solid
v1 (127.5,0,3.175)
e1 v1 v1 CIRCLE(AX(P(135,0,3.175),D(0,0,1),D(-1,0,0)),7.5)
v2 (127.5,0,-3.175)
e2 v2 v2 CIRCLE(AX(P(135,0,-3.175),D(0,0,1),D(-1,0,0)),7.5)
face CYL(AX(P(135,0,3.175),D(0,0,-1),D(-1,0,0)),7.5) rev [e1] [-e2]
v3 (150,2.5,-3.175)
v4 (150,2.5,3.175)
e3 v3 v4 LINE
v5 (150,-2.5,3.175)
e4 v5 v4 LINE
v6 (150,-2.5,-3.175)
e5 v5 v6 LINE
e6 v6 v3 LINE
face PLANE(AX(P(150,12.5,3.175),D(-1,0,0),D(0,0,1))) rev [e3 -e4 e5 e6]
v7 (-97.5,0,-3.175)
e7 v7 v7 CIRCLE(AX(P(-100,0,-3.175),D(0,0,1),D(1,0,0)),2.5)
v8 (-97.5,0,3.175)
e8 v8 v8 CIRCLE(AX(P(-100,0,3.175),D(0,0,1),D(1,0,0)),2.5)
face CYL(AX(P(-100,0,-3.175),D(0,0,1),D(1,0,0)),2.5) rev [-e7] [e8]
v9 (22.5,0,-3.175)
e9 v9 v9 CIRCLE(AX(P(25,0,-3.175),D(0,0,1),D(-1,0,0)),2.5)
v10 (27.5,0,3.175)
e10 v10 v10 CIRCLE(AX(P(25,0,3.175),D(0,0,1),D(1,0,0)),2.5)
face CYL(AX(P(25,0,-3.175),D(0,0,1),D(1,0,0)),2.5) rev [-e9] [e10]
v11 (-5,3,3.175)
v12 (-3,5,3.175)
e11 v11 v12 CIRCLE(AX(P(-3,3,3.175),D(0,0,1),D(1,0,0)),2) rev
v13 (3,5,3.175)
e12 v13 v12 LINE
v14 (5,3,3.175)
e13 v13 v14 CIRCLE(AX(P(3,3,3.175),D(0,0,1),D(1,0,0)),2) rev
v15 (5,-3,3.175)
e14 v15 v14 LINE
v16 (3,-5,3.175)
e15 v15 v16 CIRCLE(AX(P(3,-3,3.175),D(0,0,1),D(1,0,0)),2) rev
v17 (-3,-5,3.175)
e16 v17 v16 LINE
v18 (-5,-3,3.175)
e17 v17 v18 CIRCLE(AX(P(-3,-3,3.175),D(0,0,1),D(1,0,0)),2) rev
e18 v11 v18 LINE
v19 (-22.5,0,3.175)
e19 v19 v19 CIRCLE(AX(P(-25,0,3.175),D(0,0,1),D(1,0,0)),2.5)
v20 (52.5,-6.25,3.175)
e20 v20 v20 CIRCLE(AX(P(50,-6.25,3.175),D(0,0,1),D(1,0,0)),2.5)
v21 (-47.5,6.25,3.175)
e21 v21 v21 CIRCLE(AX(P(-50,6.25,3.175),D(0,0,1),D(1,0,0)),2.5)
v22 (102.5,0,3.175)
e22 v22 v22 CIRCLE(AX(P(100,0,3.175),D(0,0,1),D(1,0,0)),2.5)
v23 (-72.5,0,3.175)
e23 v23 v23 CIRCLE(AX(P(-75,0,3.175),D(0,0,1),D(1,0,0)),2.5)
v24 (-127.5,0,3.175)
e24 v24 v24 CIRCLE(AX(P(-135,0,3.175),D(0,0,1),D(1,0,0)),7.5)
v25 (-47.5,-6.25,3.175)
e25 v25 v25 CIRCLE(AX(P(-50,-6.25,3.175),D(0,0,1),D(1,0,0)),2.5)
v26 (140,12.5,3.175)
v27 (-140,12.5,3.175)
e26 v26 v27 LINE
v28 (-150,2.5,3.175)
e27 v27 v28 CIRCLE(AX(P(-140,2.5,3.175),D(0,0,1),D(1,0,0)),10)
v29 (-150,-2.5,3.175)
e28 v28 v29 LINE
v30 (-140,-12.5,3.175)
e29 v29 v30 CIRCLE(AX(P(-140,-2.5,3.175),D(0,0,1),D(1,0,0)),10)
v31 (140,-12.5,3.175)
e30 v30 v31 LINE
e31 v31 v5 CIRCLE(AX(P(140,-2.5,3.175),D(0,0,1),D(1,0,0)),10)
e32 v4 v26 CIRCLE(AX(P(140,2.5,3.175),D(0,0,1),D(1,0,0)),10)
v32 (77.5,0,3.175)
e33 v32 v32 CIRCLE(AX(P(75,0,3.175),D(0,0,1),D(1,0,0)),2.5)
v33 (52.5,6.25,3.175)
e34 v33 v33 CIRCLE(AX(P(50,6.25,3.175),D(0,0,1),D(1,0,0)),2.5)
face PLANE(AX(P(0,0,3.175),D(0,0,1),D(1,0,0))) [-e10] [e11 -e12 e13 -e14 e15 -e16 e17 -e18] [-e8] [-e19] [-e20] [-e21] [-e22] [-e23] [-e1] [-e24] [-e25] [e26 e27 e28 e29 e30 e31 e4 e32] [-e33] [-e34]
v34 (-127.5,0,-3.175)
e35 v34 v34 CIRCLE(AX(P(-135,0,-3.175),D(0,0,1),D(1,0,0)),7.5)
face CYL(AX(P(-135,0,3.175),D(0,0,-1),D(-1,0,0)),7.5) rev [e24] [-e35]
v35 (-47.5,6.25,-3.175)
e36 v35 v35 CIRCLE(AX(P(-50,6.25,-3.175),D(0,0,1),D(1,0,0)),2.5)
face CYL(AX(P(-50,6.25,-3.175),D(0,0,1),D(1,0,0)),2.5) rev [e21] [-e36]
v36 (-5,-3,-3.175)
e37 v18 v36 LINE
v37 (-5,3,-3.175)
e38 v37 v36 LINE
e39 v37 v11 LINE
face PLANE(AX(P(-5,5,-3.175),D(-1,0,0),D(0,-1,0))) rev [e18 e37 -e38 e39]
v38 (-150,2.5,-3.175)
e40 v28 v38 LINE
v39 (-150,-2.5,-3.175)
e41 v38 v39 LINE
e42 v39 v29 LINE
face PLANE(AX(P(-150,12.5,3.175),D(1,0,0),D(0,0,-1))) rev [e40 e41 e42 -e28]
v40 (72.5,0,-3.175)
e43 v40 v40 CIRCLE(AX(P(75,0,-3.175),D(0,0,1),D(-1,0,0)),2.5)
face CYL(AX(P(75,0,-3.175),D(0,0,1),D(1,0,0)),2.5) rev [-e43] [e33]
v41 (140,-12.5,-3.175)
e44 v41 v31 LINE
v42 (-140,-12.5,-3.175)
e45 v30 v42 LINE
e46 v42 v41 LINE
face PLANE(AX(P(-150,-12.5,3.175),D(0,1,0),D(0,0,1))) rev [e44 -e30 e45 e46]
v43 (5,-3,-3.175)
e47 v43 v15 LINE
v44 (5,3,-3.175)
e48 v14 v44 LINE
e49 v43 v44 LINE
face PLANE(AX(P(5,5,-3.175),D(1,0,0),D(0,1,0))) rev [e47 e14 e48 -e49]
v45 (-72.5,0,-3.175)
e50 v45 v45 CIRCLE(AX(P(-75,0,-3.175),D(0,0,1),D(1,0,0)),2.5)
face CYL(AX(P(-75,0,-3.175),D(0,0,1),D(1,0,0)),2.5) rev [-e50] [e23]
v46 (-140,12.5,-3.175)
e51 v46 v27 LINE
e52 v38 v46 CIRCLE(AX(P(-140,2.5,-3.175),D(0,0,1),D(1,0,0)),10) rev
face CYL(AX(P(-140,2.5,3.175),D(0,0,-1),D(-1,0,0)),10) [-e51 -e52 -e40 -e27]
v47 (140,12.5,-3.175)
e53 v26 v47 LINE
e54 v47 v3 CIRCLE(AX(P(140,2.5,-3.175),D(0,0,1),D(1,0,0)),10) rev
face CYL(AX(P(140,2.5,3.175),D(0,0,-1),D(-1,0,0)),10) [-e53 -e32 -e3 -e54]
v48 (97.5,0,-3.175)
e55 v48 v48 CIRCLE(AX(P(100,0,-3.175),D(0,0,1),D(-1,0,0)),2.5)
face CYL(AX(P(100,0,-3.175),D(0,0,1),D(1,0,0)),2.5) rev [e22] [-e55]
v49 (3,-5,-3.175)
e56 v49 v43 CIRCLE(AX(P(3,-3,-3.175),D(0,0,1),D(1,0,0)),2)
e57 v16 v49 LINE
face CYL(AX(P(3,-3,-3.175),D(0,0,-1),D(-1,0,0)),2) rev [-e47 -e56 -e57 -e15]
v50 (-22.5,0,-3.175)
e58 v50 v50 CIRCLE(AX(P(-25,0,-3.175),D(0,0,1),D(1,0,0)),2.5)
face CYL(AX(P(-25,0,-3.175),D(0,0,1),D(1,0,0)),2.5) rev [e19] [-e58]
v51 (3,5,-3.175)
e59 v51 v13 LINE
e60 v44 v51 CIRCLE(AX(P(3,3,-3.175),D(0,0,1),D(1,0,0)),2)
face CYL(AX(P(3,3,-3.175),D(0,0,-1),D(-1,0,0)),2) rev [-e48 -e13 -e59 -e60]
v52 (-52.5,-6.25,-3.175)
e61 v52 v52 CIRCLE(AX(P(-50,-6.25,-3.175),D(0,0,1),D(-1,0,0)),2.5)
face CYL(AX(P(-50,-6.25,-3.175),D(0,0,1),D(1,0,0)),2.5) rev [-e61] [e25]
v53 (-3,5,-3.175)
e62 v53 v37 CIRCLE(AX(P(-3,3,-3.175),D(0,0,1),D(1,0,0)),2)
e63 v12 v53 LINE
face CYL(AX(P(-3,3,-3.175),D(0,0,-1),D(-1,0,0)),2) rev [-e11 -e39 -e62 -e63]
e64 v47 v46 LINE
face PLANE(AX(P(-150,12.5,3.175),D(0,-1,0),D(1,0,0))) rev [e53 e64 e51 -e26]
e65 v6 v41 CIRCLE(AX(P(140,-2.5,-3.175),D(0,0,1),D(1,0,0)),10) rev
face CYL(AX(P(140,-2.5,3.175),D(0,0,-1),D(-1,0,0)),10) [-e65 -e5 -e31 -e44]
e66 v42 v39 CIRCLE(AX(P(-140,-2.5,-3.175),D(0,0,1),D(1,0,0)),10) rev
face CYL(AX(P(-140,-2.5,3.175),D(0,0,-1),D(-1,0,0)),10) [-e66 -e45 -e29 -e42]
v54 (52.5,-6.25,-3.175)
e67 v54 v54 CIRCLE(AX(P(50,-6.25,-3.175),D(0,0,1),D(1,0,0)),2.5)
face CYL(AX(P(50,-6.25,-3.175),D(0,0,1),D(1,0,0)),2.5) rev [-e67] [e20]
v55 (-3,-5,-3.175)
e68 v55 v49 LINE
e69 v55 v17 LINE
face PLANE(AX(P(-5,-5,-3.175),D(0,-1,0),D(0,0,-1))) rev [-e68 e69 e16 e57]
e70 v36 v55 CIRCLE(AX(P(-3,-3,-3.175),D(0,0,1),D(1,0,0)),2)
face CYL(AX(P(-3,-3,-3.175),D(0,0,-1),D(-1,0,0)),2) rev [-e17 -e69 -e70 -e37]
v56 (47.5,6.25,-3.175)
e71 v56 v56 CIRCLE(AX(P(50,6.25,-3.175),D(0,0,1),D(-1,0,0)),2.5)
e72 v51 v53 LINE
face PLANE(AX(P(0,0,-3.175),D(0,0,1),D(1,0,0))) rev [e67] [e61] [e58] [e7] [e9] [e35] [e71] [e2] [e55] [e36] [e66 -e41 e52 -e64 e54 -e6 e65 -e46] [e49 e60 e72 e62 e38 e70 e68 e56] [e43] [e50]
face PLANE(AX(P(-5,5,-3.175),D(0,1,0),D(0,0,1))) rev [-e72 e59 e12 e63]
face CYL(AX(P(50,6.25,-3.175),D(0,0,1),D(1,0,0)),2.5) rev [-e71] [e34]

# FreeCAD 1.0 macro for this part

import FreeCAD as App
import Part
import Sketcher
from FreeCAD import Vector


def edges_at(feature, points):
    """Names of the edges that pass closest to the given points."""
    edges = feature.Shape.Edges
    near = lambda p: min(range(len(edges)), key=lambda i: edges[i].distToShape(Part.Vertex(*p))[0])
    return sorted({f"Edge{near(p) + 1}" for p in points})


def add_polygon(sketch, points):
    """Adds a closed chain of lines whose ends are joined by coincident constraints."""
    first, n = sketch.GeometryCount, len(points)
    for a, b in zip(points, points[1:] + points[:1]):
        sketch.addGeometry(Part.LineSegment(App.Vector(*a, 0), App.Vector(*b, 0)), False)
    for i in range(n):
        sketch.addConstraint(Sketcher.Constraint("Coincident", first + i, 2, first + (i + 1) % n, 1))

doc = App.newDocument("Part")
params = doc.addObject("Spreadsheet::Sheet", "Params")
for row, (alias, value) in enumerate([
    ("sketch1_diameter", "15 mm"),
    ("sketch1_width", "300 mm"),
    ("sketch1_height", "25 mm"),
    ("pad1_length", "6.35 mm"),
    ("fillet_radius", "10 mm"),
    ("sketch2_diameter", "5 mm"),
    ("sketch2_width", "10 mm"),
    ("fillet2_radius", "2 mm"),
    ("sketch3_diameter", "5 mm"),
], start=1):
    params.set(f"A{row}", alias)
    params.set(f"B{row}", "=" + value)
    params.setAlias(f"B{row}", alias)

body = doc.addObject("PartDesign::Body", "Body")

# Sketch on XY plane
sketch1 = body.newObject("Sketcher::SketchObject", "Sketch")
sketch1.AttachmentSupport = (doc.getObject("XY_Plane"), [""])
sketch1.MapMode = "FlatFace"
add_polygon(sketch1, [(-150, 12), (-150, -12), (150, -12), (150, 12)])  # lines 0-3
sketch1.addGeometry(Part.Circle(Vector(-135, 0, 0), Vector(0, 0, 1), 8), False)  # 4
sketch1.addGeometry(Part.Circle(Vector(135, 0, 0), Vector(0, 0, 1), 8), False)  # 5
sketch1.addConstraint([
    Sketcher.Constraint("Vertical", 0),
    Sketcher.Constraint("Horizontal", 1),
    Sketcher.Constraint("Vertical", 2),
    Sketcher.Constraint("Horizontal", 3),
    Sketcher.Constraint("Equal", 4, 5),
    Sketcher.Constraint("Symmetric", 4, 3, 5, 3, -1, 1),
    Sketcher.Constraint("Symmetric", 0, 2, 2, 2, -1, 1),
    Sketcher.Constraint("PointOnObject", 4, 3, -1),
    Sketcher.Constraint("Diameter", 4, 15.0),
    Sketcher.Constraint("DistanceX", 1, 1, 1, 2, 300.0),
    Sketcher.Constraint("DistanceY", 0, 2, 0, 1, 25.0),
    Sketcher.Constraint("DistanceX", 4, 3, -1, 1, 135.0),
])
sketch1.setExpression("Constraints[12]", "Params.sketch1_diameter")
sketch1.setExpression("Constraints[13]", "Params.sketch1_width")
sketch1.setExpression("Constraints[14]", "Params.sketch1_height")
pad1 = body.newObject("PartDesign::Pad", "Pad")
pad1.Profile = sketch1
pad1.setExpression("Length", "Params.pad1_length")
pad1.Midplane = True
doc.recompute()

fillet = body.newObject("PartDesign::Fillet", "Fillet")
fillet.Base = (pad1, edges_at(pad1, [
    (150, -12.5, 0),
    (-150, -12.5, 0),
    (-150, 12.5, 0),
    (150, 12.5, 0),
]))
fillet.setExpression("Radius", "Params.fillet_radius")

# Sketch on XY plane
sketch2 = body.newObject("Sketcher::SketchObject", "Sketch001")
sketch2.AttachmentSupport = (doc.getObject("XY_Plane"), [""])
sketch2.MapMode = "FlatFace"
sketch2.AttachmentOffset = App.Placement(Vector(0, 0, 3.175), App.Rotation())
sketch2.addGeometry(Part.Circle(Vector(-25, 0, 0), Vector(0, 0, 1), 2.5), False)  # 0
sketch2.addGeometry(Part.Circle(Vector(-75, 0, 0), Vector(0, 0, 1), 2.5), False)  # 1
sketch2.addGeometry(Part.Circle(Vector(25, 0, 0), Vector(0, 0, 1), 2.5), False)  # 2
sketch2.addGeometry(Part.Circle(Vector(75, 0, 0), Vector(0, 0, 1), 2.5), False)  # 3
add_polygon(sketch2, [(-5, 5), (-5, -5), (5, -5), (5, 5)])  # lines 4-7
sketch2.addConstraint([
    Sketcher.Constraint("Vertical", 4),
    Sketcher.Constraint("Horizontal", 5),
    Sketcher.Constraint("Vertical", 6),
    Sketcher.Constraint("Horizontal", 7),
    Sketcher.Constraint("Equal", 0, 1),
    Sketcher.Constraint("Equal", 1, 2),
    Sketcher.Constraint("Equal", 2, 3),
    Sketcher.Constraint("Symmetric", 0, 3, 2, 3, -1, 1),
    Sketcher.Constraint("Symmetric", 1, 3, 3, 3, -1, 1),
    Sketcher.Constraint("Symmetric", 4, 2, 6, 2, -1, 1),
    Sketcher.Constraint("PointOnObject", 0, 3, -1),
    Sketcher.Constraint("PointOnObject", 1, 3, -1),
    Sketcher.Constraint("Equal", 7, 4),
    Sketcher.Constraint("Diameter", 0, 5.0),
    Sketcher.Constraint("DistanceX", 5, 1, 5, 2, 10.0),
    Sketcher.Constraint("DistanceX", 0, 3, -1, 1, 25.0),
    Sketcher.Constraint("DistanceX", 1, 3, -1, 1, 75.0),
])
sketch2.setExpression("Constraints[17]", "Params.sketch2_diameter")
sketch2.setExpression("Constraints[18]", "Params.sketch2_width")
pocket1 = body.newObject("PartDesign::Pocket", "Pocket")
pocket1.Profile = sketch2
pocket1.Type = "ThroughAll"
pocket1.Midplane = True
doc.recompute()

fillet2 = body.newObject("PartDesign::Fillet", "Fillet001")
fillet2.Base = (pocket1, edges_at(pocket1, [
    (5, 5, 0),
    (5, -5, 0),
    (-5, -5, 0),
    (-5, 5, 0),
]))
fillet2.setExpression("Radius", "Params.fillet2_radius")

# Sketch on XY plane
sketch3 = body.newObject("Sketcher::SketchObject", "Sketch002")
sketch3.AttachmentSupport = (doc.getObject("XY_Plane"), [""])
sketch3.MapMode = "FlatFace"
sketch3.AttachmentOffset = App.Placement(Vector(0, 0, 3.175), App.Rotation())
sketch3.addGeometry([
    Part.Circle(Vector(-50, 6.2, 0), Vector(0, 0, 1), 2.5),  # 0
    Part.Circle(Vector(-50, -6.2, 0), Vector(0, 0, 1), 2.5),  # 1
    Part.Circle(Vector(50, -6.2, 0), Vector(0, 0, 1), 2.5),  # 2
    Part.Circle(Vector(50, 6.2, 0), Vector(0, 0, 1), 2.5),  # 3
    Part.Circle(Vector(-100, 0, 0), Vector(0, 0, 1), 2.5),  # 4
    Part.Circle(Vector(100, 0, 0), Vector(0, 0, 1), 2.5),  # 5
], False)
sketch3.addConstraint([
    Sketcher.Constraint("Equal", 0, 1),
    Sketcher.Constraint("Equal", 1, 2),
    Sketcher.Constraint("Equal", 2, 3),
    Sketcher.Constraint("Equal", 3, 4),
    Sketcher.Constraint("Equal", 4, 5),
    Sketcher.Constraint("Symmetric", 0, 3, 2, 3, -1, 1),
    Sketcher.Constraint("Symmetric", 1, 3, 3, 3, -1, 1),
    Sketcher.Constraint("Symmetric", 4, 3, 5, 3, -1, 1),
    Sketcher.Constraint("Symmetric", 1, 3, 2, 3, -2),
    Sketcher.Constraint("PointOnObject", 4, 3, -1),
    Sketcher.Constraint("Diameter", 0, 5.0),
    Sketcher.Constraint("DistanceX", 0, 3, -1, 1, 50.0),
    Sketcher.Constraint("DistanceX", 4, 3, -1, 1, 100.0),
    Sketcher.Constraint("DistanceY", 1, 3, 0, 3, 12.5),
])
sketch3.setExpression("Constraints[10]", "Params.sketch3_diameter")
pocket2 = body.newObject("PartDesign::Pocket", "Pocket001")
pocket2.Profile = sketch3
pocket2.Type = "ThroughAll"
pocket2.Midplane = True

doc.recompute()
